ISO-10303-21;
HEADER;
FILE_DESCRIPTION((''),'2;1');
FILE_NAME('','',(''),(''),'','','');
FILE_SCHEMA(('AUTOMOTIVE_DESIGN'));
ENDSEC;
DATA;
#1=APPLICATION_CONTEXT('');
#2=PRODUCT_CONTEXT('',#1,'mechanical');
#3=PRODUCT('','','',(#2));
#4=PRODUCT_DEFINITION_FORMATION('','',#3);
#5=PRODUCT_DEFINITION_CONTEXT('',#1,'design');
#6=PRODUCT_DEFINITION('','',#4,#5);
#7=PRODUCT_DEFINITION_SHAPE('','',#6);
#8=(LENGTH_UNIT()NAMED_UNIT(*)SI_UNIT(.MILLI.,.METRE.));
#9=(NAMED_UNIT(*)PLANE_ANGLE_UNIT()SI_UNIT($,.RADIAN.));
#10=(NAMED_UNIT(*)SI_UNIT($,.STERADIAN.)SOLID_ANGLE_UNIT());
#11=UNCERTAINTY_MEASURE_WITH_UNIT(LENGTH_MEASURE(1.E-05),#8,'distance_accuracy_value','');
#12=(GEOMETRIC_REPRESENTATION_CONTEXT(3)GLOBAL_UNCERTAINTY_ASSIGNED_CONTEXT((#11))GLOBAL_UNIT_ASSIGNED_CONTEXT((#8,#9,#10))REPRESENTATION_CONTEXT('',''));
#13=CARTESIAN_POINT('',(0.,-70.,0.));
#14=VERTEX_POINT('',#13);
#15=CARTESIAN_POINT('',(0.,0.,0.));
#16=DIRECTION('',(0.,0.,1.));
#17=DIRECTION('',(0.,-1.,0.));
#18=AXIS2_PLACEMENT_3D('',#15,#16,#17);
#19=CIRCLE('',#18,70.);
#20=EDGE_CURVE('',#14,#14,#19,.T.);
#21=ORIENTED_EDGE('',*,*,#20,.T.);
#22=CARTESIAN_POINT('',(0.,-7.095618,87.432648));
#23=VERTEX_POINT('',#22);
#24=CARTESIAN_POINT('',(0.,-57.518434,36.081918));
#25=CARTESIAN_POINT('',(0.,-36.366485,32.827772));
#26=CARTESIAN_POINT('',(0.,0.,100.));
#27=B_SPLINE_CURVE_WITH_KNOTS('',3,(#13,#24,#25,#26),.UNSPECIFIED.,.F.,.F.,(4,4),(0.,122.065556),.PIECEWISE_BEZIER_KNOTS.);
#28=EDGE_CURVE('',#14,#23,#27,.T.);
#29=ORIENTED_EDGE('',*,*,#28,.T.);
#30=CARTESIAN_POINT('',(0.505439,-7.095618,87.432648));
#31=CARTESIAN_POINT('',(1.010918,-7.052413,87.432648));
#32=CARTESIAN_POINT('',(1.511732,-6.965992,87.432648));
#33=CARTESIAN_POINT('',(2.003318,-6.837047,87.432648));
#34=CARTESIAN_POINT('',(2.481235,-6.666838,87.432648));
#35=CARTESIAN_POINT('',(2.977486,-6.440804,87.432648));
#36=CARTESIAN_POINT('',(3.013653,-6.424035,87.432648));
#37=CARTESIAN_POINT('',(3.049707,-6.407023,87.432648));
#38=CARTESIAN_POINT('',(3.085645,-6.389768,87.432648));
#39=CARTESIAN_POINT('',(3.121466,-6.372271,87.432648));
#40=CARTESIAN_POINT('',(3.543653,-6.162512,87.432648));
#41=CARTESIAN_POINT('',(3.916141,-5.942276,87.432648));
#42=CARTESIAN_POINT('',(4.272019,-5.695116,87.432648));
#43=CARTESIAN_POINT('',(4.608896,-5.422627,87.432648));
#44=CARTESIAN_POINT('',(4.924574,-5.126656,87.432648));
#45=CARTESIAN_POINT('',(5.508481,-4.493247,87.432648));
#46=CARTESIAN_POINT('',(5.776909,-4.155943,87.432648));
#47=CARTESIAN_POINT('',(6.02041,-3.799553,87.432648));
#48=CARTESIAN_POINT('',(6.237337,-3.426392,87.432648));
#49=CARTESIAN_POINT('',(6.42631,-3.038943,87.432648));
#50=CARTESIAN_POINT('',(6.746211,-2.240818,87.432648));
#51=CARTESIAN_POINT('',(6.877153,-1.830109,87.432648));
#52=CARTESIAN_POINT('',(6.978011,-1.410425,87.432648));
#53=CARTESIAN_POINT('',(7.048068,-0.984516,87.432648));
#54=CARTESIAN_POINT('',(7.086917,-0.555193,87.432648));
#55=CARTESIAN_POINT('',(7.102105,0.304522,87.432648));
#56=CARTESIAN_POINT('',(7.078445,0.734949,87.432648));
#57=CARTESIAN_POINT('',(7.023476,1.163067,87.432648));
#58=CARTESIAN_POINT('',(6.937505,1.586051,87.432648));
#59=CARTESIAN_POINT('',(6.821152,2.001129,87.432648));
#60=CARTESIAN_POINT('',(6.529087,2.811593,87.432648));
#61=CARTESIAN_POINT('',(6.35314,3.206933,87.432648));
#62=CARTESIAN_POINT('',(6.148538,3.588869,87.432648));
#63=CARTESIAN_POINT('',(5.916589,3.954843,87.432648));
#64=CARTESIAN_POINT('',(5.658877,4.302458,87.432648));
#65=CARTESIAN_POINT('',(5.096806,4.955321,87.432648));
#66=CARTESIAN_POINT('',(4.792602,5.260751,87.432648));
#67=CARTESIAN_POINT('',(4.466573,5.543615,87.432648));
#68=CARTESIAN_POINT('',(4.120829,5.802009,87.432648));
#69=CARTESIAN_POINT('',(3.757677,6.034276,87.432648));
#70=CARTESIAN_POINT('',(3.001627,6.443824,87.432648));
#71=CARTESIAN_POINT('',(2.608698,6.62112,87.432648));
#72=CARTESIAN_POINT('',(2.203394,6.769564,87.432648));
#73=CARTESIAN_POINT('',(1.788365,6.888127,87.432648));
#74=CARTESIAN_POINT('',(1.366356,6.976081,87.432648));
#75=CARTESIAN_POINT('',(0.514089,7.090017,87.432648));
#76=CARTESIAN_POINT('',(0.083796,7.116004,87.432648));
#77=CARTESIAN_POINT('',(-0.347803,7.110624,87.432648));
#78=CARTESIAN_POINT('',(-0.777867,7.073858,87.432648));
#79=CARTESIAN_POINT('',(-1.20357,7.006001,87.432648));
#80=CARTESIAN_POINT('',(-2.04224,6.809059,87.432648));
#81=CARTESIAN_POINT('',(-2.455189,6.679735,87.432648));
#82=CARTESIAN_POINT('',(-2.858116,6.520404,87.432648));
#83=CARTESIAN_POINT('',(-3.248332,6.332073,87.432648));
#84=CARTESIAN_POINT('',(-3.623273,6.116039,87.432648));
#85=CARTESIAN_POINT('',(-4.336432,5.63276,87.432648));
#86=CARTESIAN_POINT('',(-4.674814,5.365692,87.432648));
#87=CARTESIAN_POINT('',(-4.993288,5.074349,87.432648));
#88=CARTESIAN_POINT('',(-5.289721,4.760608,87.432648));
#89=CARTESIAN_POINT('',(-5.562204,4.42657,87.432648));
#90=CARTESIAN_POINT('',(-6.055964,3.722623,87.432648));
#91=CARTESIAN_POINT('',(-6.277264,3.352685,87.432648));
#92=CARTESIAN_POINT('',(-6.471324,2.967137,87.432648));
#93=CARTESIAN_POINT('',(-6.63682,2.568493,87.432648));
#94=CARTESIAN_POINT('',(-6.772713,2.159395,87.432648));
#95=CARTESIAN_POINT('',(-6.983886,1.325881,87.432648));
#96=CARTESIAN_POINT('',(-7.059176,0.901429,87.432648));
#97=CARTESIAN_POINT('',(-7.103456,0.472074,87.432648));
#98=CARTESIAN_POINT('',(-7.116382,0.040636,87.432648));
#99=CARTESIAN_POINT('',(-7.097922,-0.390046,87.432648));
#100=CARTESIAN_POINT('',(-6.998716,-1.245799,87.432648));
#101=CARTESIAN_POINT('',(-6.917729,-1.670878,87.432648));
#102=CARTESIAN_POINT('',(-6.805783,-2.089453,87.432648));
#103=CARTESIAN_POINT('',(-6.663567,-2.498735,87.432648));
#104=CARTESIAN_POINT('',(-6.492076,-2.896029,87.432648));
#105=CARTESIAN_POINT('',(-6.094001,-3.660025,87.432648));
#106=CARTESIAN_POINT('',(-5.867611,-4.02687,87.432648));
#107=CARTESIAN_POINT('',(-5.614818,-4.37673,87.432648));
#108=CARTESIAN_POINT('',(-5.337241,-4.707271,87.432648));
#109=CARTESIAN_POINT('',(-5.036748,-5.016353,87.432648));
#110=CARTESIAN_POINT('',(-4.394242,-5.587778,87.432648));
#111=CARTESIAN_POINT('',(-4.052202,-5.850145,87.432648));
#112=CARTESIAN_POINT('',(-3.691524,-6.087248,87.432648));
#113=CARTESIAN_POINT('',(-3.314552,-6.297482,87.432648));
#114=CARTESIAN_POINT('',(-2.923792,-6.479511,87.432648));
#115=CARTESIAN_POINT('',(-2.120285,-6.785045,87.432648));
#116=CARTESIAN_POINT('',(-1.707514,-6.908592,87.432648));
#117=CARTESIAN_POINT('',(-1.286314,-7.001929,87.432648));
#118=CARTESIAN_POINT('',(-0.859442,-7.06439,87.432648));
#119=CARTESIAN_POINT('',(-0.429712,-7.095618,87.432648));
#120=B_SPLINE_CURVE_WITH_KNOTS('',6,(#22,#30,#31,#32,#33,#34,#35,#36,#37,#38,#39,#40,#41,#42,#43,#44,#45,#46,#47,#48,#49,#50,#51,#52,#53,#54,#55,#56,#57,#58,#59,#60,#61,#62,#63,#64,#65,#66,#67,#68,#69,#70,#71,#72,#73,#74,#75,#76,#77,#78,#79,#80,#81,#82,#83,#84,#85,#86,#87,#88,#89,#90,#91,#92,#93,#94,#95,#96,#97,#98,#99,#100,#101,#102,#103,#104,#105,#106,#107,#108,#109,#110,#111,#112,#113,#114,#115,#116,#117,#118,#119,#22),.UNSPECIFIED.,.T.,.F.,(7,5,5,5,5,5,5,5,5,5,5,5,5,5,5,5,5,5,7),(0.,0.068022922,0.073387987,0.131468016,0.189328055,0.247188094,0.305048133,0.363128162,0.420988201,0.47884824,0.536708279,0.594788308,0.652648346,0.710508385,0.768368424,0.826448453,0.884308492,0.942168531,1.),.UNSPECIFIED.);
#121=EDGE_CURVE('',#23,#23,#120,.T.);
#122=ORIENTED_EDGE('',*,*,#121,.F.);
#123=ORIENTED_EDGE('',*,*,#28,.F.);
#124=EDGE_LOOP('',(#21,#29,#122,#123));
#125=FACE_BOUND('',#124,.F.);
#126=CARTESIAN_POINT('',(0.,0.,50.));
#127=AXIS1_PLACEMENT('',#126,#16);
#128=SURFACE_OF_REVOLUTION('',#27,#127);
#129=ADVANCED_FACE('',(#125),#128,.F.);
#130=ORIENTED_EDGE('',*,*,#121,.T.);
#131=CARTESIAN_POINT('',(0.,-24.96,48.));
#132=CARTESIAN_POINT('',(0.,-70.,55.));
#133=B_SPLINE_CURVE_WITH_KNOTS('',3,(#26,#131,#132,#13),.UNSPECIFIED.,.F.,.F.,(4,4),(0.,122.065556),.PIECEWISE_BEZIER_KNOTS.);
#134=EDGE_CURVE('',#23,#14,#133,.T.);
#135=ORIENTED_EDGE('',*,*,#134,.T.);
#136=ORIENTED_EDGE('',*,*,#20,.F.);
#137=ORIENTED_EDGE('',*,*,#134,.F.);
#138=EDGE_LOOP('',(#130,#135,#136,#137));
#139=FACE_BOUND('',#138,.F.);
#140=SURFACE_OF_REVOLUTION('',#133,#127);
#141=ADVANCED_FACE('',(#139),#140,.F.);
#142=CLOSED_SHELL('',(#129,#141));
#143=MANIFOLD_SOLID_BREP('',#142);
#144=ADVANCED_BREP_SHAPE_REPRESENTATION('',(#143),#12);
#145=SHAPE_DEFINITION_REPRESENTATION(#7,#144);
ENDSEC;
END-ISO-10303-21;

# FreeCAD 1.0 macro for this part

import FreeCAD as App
import Part
import Sketcher

doc = App.newDocument("Part")
params = doc.addObject("Spreadsheet::Sheet", "Params")
for row, (alias, value) in enumerate([
    ("revolution_angle", "360 deg"),
    ("groove_angle", "360 deg"),
], start=1):
    params.set(f"A{row}", alias)
    params.set(f"B{row}", "=" + value)
    params.setAlias(f"B{row}", alias)

body = doc.addObject("PartDesign::Body", "Body")

# Sketch on YZ plane
sketch1 = doc.addObject("Sketcher::SketchObject", "Sketch")
body.addObject(sketch1)
sketch1.AttachmentSupport = (doc.YZ_Plane, [""])
sketch1.MapMode = "FlatFace"
sketch1.addGeometry(Part.BSplineCurve([App.Vector(0, 100, 0), App.Vector(-24.96, 48, 0), App.Vector(-70, 55, 0), App.Vector(-70, 0, 0)], [4, 4], [0, 122.065556], False, 3, [1, 1, 1, 1], False), False)
sketch1.addGeometry(Part.LineSegment(App.Vector(-70, 0, 0), App.Vector(0, 0, 0)), False)
sketch1.addGeometry(Part.LineSegment(App.Vector(0, 0, 0), App.Vector(0, 100, 0)), False)
sketch1.addConstraint(Sketcher.Constraint("Block", 0))
sketch1.addConstraint(Sketcher.Constraint("Coincident", 0, 2, 1, 1))
sketch1.addConstraint(Sketcher.Constraint("Coincident", 1, 2, 2, 1))
sketch1.addConstraint(Sketcher.Constraint("Coincident", 2, 2, 0, 1))
sketch1.addConstraint(Sketcher.Constraint("Horizontal", 1))
sketch1.addConstraint(Sketcher.Constraint("Vertical", 2))
revolution = doc.addObject("PartDesign::Revolution", "Revolution")
body.addObject(revolution)
revolution.Profile = sketch1
revolution.ReferenceAxis = (sketch1, ["V_Axis"])
revolution.setExpression("Angle", "Params.revolution_angle")

# Sketch on YZ plane
sketch2 = doc.addObject("Sketcher::SketchObject", "Sketch001")
body.addObject(sketch2)
sketch2.AttachmentSupport = (doc.YZ_Plane, [""])
sketch2.MapMode = "FlatFace"
sketch2.addGeometry(Part.BSplineCurve([App.Vector(-70, 0, 0), App.Vector(-57.518434, 36.081918, 0), App.Vector(-36.366485, 32.827772, 0), App.Vector(0, 100, 0)], [4, 4], [0, 122.065556], False, 3, [1, 1, 1, 1], False), False)
sketch2.addGeometry(Part.LineSegment(App.Vector(-70, 0, 0), App.Vector(0, 0, 0)), False)
sketch2.addGeometry(Part.LineSegment(App.Vector(0, 0, 0), App.Vector(0, 100, 0)), False)
sketch2.addConstraint(Sketcher.Constraint("Block", 0))
sketch2.addConstraint(Sketcher.Constraint("Coincident", 0, 1, 1, 1))
sketch2.addConstraint(Sketcher.Constraint("Coincident", 1, 2, 2, 1))
sketch2.addConstraint(Sketcher.Constraint("Coincident", 2, 2, 0, 2))
sketch2.addConstraint(Sketcher.Constraint("Horizontal", 1))
sketch2.addConstraint(Sketcher.Constraint("Vertical", 2))
groove = doc.addObject("PartDesign::Groove", "Groove")
body.addObject(groove)
groove.Profile = sketch2
groove.ReferenceAxis = (sketch2, ["V_Axis"])
groove.setExpression("Angle", "Params.groove_angle")

doc.recompute()
